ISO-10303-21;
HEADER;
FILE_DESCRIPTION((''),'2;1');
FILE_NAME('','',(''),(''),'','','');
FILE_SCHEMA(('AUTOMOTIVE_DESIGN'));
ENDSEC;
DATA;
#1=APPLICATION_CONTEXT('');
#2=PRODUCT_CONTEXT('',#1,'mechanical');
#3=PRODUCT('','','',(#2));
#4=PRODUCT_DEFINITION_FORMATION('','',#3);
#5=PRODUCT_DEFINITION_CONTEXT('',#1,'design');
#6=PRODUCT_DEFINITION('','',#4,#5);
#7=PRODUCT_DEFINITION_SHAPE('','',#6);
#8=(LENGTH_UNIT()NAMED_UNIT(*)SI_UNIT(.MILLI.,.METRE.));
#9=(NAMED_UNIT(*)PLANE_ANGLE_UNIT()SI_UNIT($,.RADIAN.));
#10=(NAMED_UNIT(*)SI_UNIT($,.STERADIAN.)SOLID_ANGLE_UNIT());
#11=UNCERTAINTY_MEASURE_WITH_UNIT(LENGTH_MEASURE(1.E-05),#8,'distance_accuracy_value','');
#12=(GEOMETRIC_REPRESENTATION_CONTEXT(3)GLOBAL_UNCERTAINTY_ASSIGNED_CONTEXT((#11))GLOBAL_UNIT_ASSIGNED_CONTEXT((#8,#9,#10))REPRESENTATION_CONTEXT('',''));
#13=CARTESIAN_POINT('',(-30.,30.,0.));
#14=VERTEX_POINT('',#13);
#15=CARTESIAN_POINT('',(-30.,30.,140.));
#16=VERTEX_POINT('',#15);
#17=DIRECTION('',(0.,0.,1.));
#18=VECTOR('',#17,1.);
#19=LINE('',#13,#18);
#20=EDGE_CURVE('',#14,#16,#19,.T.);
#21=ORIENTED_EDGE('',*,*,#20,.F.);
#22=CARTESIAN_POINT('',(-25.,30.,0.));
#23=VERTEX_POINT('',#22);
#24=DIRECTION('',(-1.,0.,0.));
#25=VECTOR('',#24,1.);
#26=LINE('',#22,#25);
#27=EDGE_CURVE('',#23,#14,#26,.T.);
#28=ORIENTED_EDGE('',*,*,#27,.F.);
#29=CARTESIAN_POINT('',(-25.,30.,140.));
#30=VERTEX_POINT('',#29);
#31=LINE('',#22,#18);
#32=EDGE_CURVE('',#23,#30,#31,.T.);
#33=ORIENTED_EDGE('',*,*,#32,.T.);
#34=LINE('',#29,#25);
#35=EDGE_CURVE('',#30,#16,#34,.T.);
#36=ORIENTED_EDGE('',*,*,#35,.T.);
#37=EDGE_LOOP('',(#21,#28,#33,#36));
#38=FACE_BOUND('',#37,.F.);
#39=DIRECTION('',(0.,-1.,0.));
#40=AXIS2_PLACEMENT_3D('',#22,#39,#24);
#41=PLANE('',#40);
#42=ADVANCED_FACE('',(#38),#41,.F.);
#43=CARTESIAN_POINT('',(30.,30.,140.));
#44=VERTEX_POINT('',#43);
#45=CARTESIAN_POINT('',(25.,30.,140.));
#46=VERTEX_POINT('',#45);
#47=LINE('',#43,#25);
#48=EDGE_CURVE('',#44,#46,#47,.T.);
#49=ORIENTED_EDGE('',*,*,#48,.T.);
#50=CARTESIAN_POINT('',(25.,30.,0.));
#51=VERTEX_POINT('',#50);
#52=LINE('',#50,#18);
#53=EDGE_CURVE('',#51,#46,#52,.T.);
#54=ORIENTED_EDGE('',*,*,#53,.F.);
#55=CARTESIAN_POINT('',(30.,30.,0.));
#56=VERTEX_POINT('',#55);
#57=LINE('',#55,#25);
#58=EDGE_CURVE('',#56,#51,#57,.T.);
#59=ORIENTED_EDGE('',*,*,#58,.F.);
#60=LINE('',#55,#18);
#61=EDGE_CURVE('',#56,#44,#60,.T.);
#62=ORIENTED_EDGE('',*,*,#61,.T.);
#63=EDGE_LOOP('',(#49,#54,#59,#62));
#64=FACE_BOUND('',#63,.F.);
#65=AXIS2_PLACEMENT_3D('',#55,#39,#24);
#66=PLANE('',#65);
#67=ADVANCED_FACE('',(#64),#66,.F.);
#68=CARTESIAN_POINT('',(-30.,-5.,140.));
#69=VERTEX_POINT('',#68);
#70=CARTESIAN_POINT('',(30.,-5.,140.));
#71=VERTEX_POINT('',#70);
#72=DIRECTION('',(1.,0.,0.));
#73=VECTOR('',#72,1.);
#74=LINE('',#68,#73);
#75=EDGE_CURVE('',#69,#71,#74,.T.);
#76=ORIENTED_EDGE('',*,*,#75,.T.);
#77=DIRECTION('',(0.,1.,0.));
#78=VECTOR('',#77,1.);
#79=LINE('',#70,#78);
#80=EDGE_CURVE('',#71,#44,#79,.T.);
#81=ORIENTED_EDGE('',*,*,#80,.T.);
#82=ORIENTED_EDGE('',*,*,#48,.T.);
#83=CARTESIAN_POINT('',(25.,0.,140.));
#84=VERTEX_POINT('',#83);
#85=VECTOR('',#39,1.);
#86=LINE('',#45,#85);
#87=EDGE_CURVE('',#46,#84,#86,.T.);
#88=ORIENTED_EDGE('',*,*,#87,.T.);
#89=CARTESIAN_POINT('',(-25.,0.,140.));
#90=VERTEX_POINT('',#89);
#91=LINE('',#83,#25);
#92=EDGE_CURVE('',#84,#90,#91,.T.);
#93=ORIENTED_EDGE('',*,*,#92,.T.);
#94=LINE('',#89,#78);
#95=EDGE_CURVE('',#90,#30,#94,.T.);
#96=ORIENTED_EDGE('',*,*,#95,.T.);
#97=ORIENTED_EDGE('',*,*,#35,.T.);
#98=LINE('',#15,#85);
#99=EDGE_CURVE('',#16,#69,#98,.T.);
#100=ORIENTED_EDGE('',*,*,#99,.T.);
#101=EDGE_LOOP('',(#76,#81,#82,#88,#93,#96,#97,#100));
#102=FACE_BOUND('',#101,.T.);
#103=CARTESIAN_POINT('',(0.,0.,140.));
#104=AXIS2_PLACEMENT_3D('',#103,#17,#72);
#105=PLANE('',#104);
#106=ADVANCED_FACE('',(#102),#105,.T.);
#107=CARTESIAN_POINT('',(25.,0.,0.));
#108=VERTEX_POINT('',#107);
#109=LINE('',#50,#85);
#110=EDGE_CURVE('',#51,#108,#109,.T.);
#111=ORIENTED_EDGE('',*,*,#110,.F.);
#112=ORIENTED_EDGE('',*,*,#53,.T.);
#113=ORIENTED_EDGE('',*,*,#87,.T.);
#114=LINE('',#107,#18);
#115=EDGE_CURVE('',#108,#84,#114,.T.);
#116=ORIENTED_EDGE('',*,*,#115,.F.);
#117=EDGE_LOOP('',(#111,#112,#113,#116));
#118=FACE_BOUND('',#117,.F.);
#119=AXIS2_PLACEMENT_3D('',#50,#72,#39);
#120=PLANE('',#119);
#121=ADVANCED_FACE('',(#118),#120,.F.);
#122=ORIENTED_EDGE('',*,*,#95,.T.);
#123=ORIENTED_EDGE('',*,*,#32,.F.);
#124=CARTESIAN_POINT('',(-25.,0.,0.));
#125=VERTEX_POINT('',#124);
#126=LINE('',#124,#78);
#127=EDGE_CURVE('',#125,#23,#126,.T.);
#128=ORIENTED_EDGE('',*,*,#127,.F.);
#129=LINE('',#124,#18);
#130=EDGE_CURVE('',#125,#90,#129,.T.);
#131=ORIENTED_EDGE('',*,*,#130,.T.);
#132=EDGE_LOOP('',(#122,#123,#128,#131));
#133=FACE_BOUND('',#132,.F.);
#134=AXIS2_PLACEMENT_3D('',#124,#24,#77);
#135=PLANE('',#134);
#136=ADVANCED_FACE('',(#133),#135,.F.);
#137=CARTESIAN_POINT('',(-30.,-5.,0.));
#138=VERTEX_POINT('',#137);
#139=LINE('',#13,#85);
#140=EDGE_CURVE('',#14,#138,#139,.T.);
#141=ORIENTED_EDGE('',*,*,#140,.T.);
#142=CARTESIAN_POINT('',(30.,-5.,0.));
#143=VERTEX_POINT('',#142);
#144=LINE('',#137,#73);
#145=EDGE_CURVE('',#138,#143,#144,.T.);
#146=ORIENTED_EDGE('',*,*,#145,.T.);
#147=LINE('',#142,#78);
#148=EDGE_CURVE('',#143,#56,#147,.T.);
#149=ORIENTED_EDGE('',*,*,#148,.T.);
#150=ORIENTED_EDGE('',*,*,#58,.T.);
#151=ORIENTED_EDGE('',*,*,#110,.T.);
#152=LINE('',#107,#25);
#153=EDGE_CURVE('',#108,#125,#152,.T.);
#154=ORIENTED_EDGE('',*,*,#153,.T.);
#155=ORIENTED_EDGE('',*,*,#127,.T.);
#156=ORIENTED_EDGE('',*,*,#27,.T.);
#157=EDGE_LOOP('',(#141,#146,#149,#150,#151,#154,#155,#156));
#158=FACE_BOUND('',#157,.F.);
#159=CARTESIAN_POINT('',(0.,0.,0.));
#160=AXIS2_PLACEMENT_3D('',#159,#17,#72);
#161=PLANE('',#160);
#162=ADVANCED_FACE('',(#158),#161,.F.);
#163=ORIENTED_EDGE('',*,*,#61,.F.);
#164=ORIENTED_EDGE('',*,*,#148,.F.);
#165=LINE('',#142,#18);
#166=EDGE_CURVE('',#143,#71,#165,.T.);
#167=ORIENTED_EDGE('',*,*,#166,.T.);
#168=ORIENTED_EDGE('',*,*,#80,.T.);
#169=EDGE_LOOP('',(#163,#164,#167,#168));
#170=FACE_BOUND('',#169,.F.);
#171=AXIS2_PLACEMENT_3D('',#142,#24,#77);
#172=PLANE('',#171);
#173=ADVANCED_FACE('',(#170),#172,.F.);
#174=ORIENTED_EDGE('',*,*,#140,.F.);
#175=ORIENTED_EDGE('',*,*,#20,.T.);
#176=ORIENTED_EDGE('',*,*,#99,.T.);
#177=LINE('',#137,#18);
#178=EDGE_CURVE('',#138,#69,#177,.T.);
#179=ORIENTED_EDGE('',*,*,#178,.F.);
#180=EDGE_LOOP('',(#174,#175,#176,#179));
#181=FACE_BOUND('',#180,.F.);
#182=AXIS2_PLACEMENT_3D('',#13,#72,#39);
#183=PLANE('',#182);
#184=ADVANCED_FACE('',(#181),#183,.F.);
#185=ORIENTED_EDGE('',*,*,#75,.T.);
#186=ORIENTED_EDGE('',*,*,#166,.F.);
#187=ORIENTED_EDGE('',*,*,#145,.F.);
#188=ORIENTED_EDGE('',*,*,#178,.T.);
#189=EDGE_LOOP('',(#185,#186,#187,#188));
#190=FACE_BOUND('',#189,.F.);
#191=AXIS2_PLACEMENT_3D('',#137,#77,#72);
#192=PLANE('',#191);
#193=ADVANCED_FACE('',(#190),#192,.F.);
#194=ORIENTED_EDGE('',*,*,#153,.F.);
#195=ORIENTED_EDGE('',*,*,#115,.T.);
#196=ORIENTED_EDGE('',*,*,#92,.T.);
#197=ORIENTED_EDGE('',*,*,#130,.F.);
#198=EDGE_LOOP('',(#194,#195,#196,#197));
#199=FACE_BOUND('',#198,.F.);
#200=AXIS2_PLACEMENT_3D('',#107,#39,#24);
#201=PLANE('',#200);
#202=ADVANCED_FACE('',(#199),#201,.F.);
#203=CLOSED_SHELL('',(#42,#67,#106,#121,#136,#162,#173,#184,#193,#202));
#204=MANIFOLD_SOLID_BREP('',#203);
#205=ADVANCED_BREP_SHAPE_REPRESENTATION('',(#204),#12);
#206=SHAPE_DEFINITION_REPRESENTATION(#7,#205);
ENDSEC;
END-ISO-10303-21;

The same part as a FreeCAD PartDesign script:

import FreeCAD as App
import Part
import Sketcher
Q = App.Units.Quantity


def add_polygon(sketch, points):
    """Adds a closed chain of lines whose ends are joined by coincident constraints."""
    first, n = sketch.GeometryCount, len(points)
    for a, b in zip(points, points[1:] + points[:1]):
        sketch.addGeometry(Part.LineSegment(App.Vector(*a, 0), App.Vector(*b, 0)), False)
    for i in range(n):
        sketch.addConstraint(Sketcher.Constraint("Coincident", first + i, 2, first + (i + 1) % n, 1))

doc = App.newDocument("Part")
body = doc.addObject("PartDesign::Body", "Body")

# Sketch on XY plane
sketch1 = body.newObject("Sketcher::SketchObject", "Sketch")
sketch1.AttachmentSupport = (doc.getObject("XY_Plane"), [""])
sketch1.MapMode = "FlatFace"
add_polygon(sketch1, [(25, 30), (25, 0), (-25, 0), (-25, 30), (-30, 30), (-30, -5), (30, -5), (30, 30)])  # lines 0-7
sketch1.addConstraint([
    Sketcher.Constraint("Vertical", 0),
    Sketcher.Constraint("Horizontal", 1),
    Sketcher.Constraint("Vertical", 2),
    Sketcher.Constraint("Horizontal", 3),
    Sketcher.Constraint("Vertical", 4),
    Sketcher.Constraint("Horizontal", 5),
    Sketcher.Constraint("Vertical", 6),
    Sketcher.Constraint("Horizontal", 7),
    Sketcher.Constraint("Symmetric", 0, 2, 1, 2, -1, 1),
    Sketcher.Constraint("Symmetric", 3, 2, 6, 2, -2),
    Sketcher.Constraint("DistanceX", 1, 2, 1, 1, Q("50 mm")),
    Sketcher.Constraint("DistanceX", 3, 2, 3, 1, Q("5 mm")),
    Sketcher.Constraint("DistanceY", 0, 2, 0, 1, Q("30 mm")),
    Sketcher.Constraint("DistanceY", 4, 2, 4, 1, Q("35 mm")),
])
pad1 = body.newObject("PartDesign::Pad", "Pad")
pad1.Profile = sketch1
pad1.Length = 140

doc.recompute()
